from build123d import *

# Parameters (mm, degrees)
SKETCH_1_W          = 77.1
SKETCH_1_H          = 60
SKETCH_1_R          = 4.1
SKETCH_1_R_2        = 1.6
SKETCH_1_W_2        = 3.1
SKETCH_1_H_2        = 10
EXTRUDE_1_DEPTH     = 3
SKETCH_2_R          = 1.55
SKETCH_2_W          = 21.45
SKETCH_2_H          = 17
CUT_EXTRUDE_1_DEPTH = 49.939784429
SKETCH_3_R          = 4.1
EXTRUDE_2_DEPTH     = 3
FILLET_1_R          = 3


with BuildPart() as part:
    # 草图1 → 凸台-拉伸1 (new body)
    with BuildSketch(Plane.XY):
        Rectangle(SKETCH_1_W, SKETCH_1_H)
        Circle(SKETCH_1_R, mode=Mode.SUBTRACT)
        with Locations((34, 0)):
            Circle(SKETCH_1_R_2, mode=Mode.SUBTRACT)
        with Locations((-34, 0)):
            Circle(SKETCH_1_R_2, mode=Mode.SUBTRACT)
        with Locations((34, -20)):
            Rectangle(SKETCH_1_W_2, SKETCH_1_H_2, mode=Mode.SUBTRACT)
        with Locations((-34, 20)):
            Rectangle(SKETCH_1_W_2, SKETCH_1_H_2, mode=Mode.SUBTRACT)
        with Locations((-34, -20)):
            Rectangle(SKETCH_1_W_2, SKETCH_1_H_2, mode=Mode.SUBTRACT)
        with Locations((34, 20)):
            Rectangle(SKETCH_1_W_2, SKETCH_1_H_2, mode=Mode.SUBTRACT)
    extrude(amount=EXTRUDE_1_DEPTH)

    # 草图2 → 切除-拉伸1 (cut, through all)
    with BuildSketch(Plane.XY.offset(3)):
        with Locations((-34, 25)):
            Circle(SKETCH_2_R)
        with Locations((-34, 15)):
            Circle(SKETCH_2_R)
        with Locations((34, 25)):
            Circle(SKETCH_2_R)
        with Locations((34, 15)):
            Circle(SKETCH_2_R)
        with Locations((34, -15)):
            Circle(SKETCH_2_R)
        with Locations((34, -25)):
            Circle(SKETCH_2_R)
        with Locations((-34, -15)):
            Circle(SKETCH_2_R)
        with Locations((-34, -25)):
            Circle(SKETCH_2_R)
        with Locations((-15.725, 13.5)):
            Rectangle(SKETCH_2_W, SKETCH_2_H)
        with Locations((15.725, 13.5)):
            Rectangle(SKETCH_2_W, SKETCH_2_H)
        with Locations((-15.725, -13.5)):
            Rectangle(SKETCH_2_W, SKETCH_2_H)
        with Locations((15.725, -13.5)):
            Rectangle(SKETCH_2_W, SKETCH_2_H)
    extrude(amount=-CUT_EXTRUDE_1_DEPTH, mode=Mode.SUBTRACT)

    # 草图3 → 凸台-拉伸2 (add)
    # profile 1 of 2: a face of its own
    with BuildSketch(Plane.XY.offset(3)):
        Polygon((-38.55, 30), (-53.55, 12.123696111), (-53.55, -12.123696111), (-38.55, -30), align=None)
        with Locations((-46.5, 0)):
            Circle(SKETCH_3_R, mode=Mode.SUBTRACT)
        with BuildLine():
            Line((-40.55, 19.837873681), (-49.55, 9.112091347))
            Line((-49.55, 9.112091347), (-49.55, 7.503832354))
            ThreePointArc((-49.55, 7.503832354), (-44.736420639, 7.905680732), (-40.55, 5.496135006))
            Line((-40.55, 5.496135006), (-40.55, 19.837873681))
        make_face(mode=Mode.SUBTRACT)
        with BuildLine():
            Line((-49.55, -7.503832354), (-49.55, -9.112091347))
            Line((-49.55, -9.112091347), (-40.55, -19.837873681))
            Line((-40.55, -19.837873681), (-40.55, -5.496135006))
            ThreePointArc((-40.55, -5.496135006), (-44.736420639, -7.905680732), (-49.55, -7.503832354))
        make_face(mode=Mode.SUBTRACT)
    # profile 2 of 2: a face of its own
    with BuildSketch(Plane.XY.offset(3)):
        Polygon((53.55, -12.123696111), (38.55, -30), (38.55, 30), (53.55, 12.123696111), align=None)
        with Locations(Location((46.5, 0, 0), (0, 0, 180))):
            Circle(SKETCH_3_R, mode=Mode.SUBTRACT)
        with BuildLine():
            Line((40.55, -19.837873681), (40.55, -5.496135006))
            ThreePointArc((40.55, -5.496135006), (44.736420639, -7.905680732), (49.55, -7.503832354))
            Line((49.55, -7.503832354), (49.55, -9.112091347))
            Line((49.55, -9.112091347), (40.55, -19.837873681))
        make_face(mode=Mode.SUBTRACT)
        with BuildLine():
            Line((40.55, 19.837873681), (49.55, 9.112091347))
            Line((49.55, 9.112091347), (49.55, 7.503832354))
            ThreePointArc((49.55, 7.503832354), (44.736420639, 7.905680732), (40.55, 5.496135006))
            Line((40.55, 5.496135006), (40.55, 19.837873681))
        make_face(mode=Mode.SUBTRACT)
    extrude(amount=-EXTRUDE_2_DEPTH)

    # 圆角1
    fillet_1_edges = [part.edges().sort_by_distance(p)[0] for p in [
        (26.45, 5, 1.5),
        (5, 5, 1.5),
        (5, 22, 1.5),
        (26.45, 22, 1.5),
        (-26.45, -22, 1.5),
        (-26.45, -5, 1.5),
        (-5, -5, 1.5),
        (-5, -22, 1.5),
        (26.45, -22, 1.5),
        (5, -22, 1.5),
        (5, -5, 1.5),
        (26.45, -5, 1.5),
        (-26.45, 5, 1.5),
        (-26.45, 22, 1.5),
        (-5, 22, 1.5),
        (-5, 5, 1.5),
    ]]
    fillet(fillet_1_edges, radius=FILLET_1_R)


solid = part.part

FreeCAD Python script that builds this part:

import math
import FreeCAD as App
import Part
import Sketcher
from FreeCAD import Vector
Q = App.Units.Quantity


def edges_at(feature, points):
    """Names of the edges that pass closest to the given points."""
    edges = feature.Shape.Edges
    near = lambda p: min(range(len(edges)), key=lambda i: edges[i].distToShape(Part.Vertex(*p))[0])
    return sorted({f"Edge{near(p) + 1}" for p in points})


def add_polygon(sketch, points):
    """Adds a closed chain of lines whose ends are joined by coincident constraints."""
    first, n = sketch.GeometryCount, len(points)
    for a, b in zip(points, points[1:] + points[:1]):
        sketch.addGeometry(Part.LineSegment(App.Vector(*a, 0), App.Vector(*b, 0)), False)
    for i in range(n):
        sketch.addConstraint(Sketcher.Constraint("Coincident", first + i, 2, first + (i + 1) % n, 1))

doc = App.newDocument("Part")
body = doc.addObject("PartDesign::Body", "Body")

# Sketch on XY plane
sketch1 = body.newObject("Sketcher::SketchObject", "Sketch")
sketch1.AttachmentSupport = (doc.getObject("XY_Plane"), [""])
sketch1.MapMode = "FlatFace"
add_polygon(sketch1, [(-38.5, 30), (-38.5, -30), (38.5, -30), (38.5, 30)])  # lines 0-3
add_polygon(sketch1, [(-32.5, -25), (-35.5, -25), (-35.5, -15), (-32.5, -15)])  # lines 4-7
add_polygon(sketch1, [(35.5, -25), (32.5, -25), (32.5, -15), (35.5, -15)])  # lines 8-11
sketch1.addGeometry(Part.Circle(Vector(-34, 0, 0), Vector(0, 0, 1), 1.6), False)  # 12
add_polygon(sketch1, [(-32.5, 15), (-35.5, 15), (-35.5, 25), (-32.5, 25)])  # lines 13-16
sketch1.addGeometry(Part.Circle(Vector(0, 0, 0), Vector(0, 0, 1), 4.1), False)  # 17
sketch1.addGeometry(Part.Circle(Vector(34, 0, 0), Vector(0, 0, 1), 1.6), False)  # 18
add_polygon(sketch1, [(35.5, 15), (32.5, 15), (32.5, 25), (35.5, 25)])  # lines 19-22
sketch1.addConstraint([
    Sketcher.Constraint("Vertical", 0),
    Sketcher.Constraint("Horizontal", 1),
    Sketcher.Constraint("Vertical", 2),
    Sketcher.Constraint("Horizontal", 3),
    Sketcher.Constraint("Horizontal", 4),
    Sketcher.Constraint("Vertical", 5),
    Sketcher.Constraint("Horizontal", 6),
    Sketcher.Constraint("Vertical", 7),
    Sketcher.Constraint("Horizontal", 8),
    Sketcher.Constraint("Vertical", 9),
    Sketcher.Constraint("Horizontal", 10),
    Sketcher.Constraint("Vertical", 11),
    Sketcher.Constraint("Horizontal", 13),
    Sketcher.Constraint("Vertical", 14),
    Sketcher.Constraint("Horizontal", 15),
    Sketcher.Constraint("Vertical", 16),
    Sketcher.Constraint("Horizontal", 19),
    Sketcher.Constraint("Vertical", 20),
    Sketcher.Constraint("Horizontal", 21),
    Sketcher.Constraint("Vertical", 22),
    Sketcher.Constraint("Coincident", 17, 3, -1, 1),
    Sketcher.Constraint("Equal", 12, 18),
    Sketcher.Constraint("Symmetric", 12, 3, 18, 3, -1, 1),
    Sketcher.Constraint("Symmetric", 0, 2, 2, 2, -1, 1),
    Sketcher.Constraint("Symmetric", 10, 2, 13, 2, -1, 1),
    Sketcher.Constraint("Symmetric", 8, 2, 15, 2, -1, 1),
    Sketcher.Constraint("Symmetric", 6, 2, 19, 2, -1, 1),
    Sketcher.Constraint("Symmetric", 4, 2, 21, 2, -1, 1),
    Sketcher.Constraint("Symmetric", 7, 2, 8, 2, -2),
    Sketcher.Constraint("Symmetric", 5, 2, 10, 2, -2),
    Sketcher.Constraint("PointOnObject", 12, 3, -1),
    Sketcher.Constraint("Diameter", 12, 3.2),
    Sketcher.Constraint("Diameter", 17, 8.2),
    Sketcher.Constraint("DistanceY", 0, 2, 0, 1, 60.0),
    Sketcher.Constraint("DistanceY", 5, 1, 5, 2, 10.0),
    Sketcher.Constraint("DistanceX", 1, 1, 1, 2, 77.1),
    Sketcher.Constraint("DistanceX", 4, 2, 4, 1, 3.1),
    Sketcher.Constraint("DistanceX", 12, 3, -1, 1, 34.0),
    Sketcher.Constraint("DistanceY", 4, 2, -1, 1, 25.0),
    Sketcher.Constraint("DistanceX", 0, 2, 4, 2, 3.0),
])
pad1 = body.newObject("PartDesign::Pad", "Pad")
pad1.Profile = sketch1
pad1.Length = 3

# Sketch on XY plane
sketch2 = body.newObject("Sketcher::SketchObject", "Sketch001")
sketch2.AttachmentSupport = (doc.getObject("XY_Plane"), [""])
sketch2.MapMode = "FlatFace"
sketch2.AttachmentOffset = App.Placement(Vector(0, 0, 3), App.Rotation())
sketch2.addGeometry(Part.Circle(Vector(-34, 25, 0), Vector(0, 0, 1), 1.6), False)  # 0
sketch2.addGeometry(Part.Circle(Vector(-34, 15, 0), Vector(0, 0, 1), 1.6), False)  # 1
sketch2.addGeometry(Part.Circle(Vector(34, 25, 0), Vector(0, 0, 1), 1.6), False)  # 2
sketch2.addGeometry(Part.Circle(Vector(34, 15, 0), Vector(0, 0, 1), 1.6), False)  # 3
sketch2.addGeometry(Part.Circle(Vector(34, -15, 0), Vector(0, 0, 1), 1.6), False)  # 4
sketch2.addGeometry(Part.Circle(Vector(34, -25, 0), Vector(0, 0, 1), 1.6), False)  # 5
sketch2.addGeometry(Part.Circle(Vector(-34, -15, 0), Vector(0, 0, 1), 1.6), False)  # 6
sketch2.addGeometry(Part.Circle(Vector(-34, -25, 0), Vector(0, 0, 1), 1.6), False)  # 7
add_polygon(sketch2, [(-26.4, 22), (-26.4, 5), (-5, 5), (-5, 22)])  # lines 8-11
add_polygon(sketch2, [(5, 22), (5, 5), (26.4, 5), (26.4, 22)])  # lines 12-15
add_polygon(sketch2, [(-26.4, -5), (-26.4, -22), (-5, -22), (-5, -5)])  # lines 16-19
add_polygon(sketch2, [(5, -5), (5, -22), (26.4, -22), (26.4, -5)])  # lines 20-23
sketch2.addConstraint([
    Sketcher.Constraint("Vertical", 8),
    Sketcher.Constraint("Horizontal", 9),
    Sketcher.Constraint("Vertical", 10),
    Sketcher.Constraint("Horizontal", 11),
    Sketcher.Constraint("Vertical", 12),
    Sketcher.Constraint("Horizontal", 13),
    Sketcher.Constraint("Vertical", 14),
    Sketcher.Constraint("Horizontal", 15),
    Sketcher.Constraint("Vertical", 16),
    Sketcher.Constraint("Horizontal", 17),
    Sketcher.Constraint("Vertical", 18),
    Sketcher.Constraint("Horizontal", 19),
    Sketcher.Constraint("Vertical", 20),
    Sketcher.Constraint("Horizontal", 21),
    Sketcher.Constraint("Vertical", 22),
    Sketcher.Constraint("Horizontal", 23),
    Sketcher.Constraint("Equal", 0, 1),
    Sketcher.Constraint("Equal", 1, 2),
    Sketcher.Constraint("Equal", 2, 3),
    Sketcher.Constraint("Equal", 3, 4),
    Sketcher.Constraint("Equal", 4, 5),
    Sketcher.Constraint("Equal", 5, 6),
    Sketcher.Constraint("Equal", 6, 7),
    Sketcher.Constraint("Symmetric", 1, 3, 4, 3, -1, 1),
    Sketcher.Constraint("Symmetric", 0, 3, 5, 3, -1, 1),
    Sketcher.Constraint("Symmetric", 3, 3, 6, 3, -1, 1),
    Sketcher.Constraint("Symmetric", 2, 3, 7, 3, -1, 1),
    Sketcher.Constraint("Symmetric", 14, 2, 16, 2, -1, 1),
    Sketcher.Constraint("Symmetric", 12, 2, 18, 2, -1, 1),
    Sketcher.Constraint("Symmetric", 10, 2, 20, 2, -1, 1),
    Sketcher.Constraint("Symmetric", 8, 2, 22, 2, -1, 1),
    Sketcher.Constraint("Symmetric", 0, 3, 2, 3, -2),
    Sketcher.Constraint("Symmetric", 1, 3, 3, 3, -2),
    Sketcher.Constraint("Symmetric", 9, 2, 12, 2, -2),
    Sketcher.Constraint("Symmetric", 11, 2, 14, 2, -2),
    Sketcher.Constraint("Vertical", 0, 3, 1, 3),
    Sketcher.Constraint("Diameter", 0, 3.1),
    Sketcher.Constraint("DistanceY", 8, 2, 8, 1, 17.0),
    Sketcher.Constraint("DistanceX", 0, 3, -1, 1, 34.0),
    Sketcher.Constraint("DistanceY", -1, 1, 0, 3, 25.0),
    Sketcher.Constraint("DistanceY", -1, 1, 1, 3, 15.0),
    Sketcher.Constraint("DistanceY", -1, 1, 8, 2, 5.0),
    Sketcher.Constraint("DistanceX", 9, 2, -1, 1, 5.0),
    Sketcher.Constraint("DistanceX", 9, 1, 9, 2, 21.45),
])
pocket1 = body.newObject("PartDesign::Pocket", "Pocket")
pocket1.Profile = sketch2
pocket1.Type = "ThroughAll"

# Sketch on XY plane
sketch3 = body.newObject("Sketcher::SketchObject", "Sketch002")
sketch3.AttachmentSupport = (doc.getObject("XY_Plane"), [""])
sketch3.MapMode = "FlatFace"
sketch3.AttachmentOffset = App.Placement(Vector(0, 0, 3), App.Rotation())
add_polygon(sketch3, [(-38.5, 30), (-53.5, 12.1), (-53.5, -12.1), (-38.5, -30)])  # lines 0-3
sketch3.addGeometry(Part.LineSegment(Vector(-49.5, -9.1, 0), Vector(-49.5, -7.5, 0)), False)  # 4
sketch3.addGeometry(Part.ArcOfCircle(Part.Circle(Vector(-46.5, 0, 0), Vector(0, 0, 1), 8.1), math.radians(-112), math.radians(-43)), False)  # 5
sketch3.addGeometry(Part.LineSegment(Vector(-40.5, -5.5, 0), Vector(-40.5, -19.8, 0)), False)  # 6
sketch3.addGeometry(Part.LineSegment(Vector(-40.5, -19.8, 0), Vector(-49.5, -9.1, 0)), False)  # 7
sketch3.addGeometry(Part.Circle(Vector(-46.5, 0, 0), Vector(0, 0, 1), 4.1), False)  # 8
sketch3.addGeometry(Part.LineSegment(Vector(-49.5, 9.1, 0), Vector(-40.5, 19.8, 0)), False)  # 9
sketch3.addGeometry(Part.LineSegment(Vector(-40.5, 19.8, 0), Vector(-40.5, 5.5, 0)), False)  # 10
sketch3.addGeometry(Part.ArcOfCircle(Part.Circle(Vector(-46.5, 0, 0), Vector(0, 0, 1), 8.1), math.radians(43), math.radians(112)), False)  # 11
sketch3.addGeometry(Part.LineSegment(Vector(-49.5, 7.5, 0), Vector(-49.5, 9.1, 0)), False)  # 12
add_polygon(sketch3, [(38.5, -30), (53.5, -12.1), (53.5, 12.1), (38.5, 30)])  # lines 13-16
sketch3.addGeometry(Part.LineSegment(Vector(40.5, -19.8, 0), Vector(40.5, -5.5, 0)), False)  # 17
sketch3.addGeometry(Part.ArcOfCircle(Part.Circle(Vector(46.5, 0, 0), Vector(0, 0, 1), 8.1), math.radians(-137), math.radians(-68)), False)  # 18
sketch3.addGeometry(Part.LineSegment(Vector(49.5, -7.5, 0), Vector(49.5, -9.1, 0)), False)  # 19
sketch3.addGeometry(Part.LineSegment(Vector(49.5, -9.1, 0), Vector(40.5, -19.8, 0)), False)  # 20
sketch3.addGeometry(Part.Circle(Vector(46.5, 0, 0), Vector(0, 0, 1), 4.1), False)  # 21
sketch3.addGeometry(Part.LineSegment(Vector(40.5, 19.8, 0), Vector(49.5, 9.1, 0)), False)  # 22
sketch3.addGeometry(Part.LineSegment(Vector(49.5, 9.1, 0), Vector(49.5, 7.5, 0)), False)  # 23
sketch3.addGeometry(Part.ArcOfCircle(Part.Circle(Vector(46.5, 0, 0), Vector(0, 0, 1), 8.1), math.radians(68), math.radians(137)), False)  # 24
sketch3.addGeometry(Part.LineSegment(Vector(40.5, 5.5, 0), Vector(40.5, 19.8, 0)), False)  # 25
sketch3.addConstraint([
    Sketcher.Constraint("Coincident", 4, 2, 5, 1),
    Sketcher.Constraint("Coincident", 5, 2, 6, 1),
    Sketcher.Constraint("Coincident", 6, 2, 7, 1),
    Sketcher.Constraint("Coincident", 7, 2, 4, 1),
    Sketcher.Constraint("Coincident", 9, 2, 10, 1),
    Sketcher.Constraint("Coincident", 10, 2, 11, 1),
    Sketcher.Constraint("Coincident", 11, 2, 12, 1),
    Sketcher.Constraint("Coincident", 12, 2, 9, 1),
    Sketcher.Constraint("Coincident", 17, 2, 18, 1),
    Sketcher.Constraint("Coincident", 18, 2, 19, 1),
    Sketcher.Constraint("Coincident", 19, 2, 20, 1),
    Sketcher.Constraint("Coincident", 20, 2, 17, 1),
    Sketcher.Constraint("Coincident", 22, 2, 23, 1),
    Sketcher.Constraint("Coincident", 23, 2, 24, 1),
    Sketcher.Constraint("Coincident", 24, 2, 25, 1),
    Sketcher.Constraint("Coincident", 25, 2, 22, 1),
    Sketcher.Constraint("Vertical", 1),
    Sketcher.Constraint("Vertical", 3),
    Sketcher.Constraint("Vertical", 4),
    Sketcher.Constraint("Vertical", 6),
    Sketcher.Constraint("Vertical", 10),
    Sketcher.Constraint("Vertical", 12),
    Sketcher.Constraint("Vertical", 14),
    Sketcher.Constraint("Vertical", 16),
    Sketcher.Constraint("Vertical", 17),
    Sketcher.Constraint("Vertical", 19),
    Sketcher.Constraint("Vertical", 23),
    Sketcher.Constraint("Vertical", 25),
    Sketcher.Constraint("Coincident", 8, 3, 5, 3),
    Sketcher.Constraint("Coincident", 11, 3, 5, 3),
    Sketcher.Constraint("Coincident", 21, 3, 18, 3),
    Sketcher.Constraint("Coincident", 24, 3, 18, 3),
    Sketcher.Constraint("Equal", 5, 11),
    Sketcher.Constraint("Equal", 11, 18),
    Sketcher.Constraint("Equal", 8, 21),
    Sketcher.Constraint("Equal", 18, 24),
    Sketcher.Constraint("Symmetric", 5, 3, 18, 3, -1, 1),
    Sketcher.Constraint("Symmetric", 0, 2, 13, 2, -1, 1),
    Sketcher.Constraint("Symmetric", 2, 2, 15, 2, -1, 1),
    Sketcher.Constraint("Symmetric", 12, 2, 19, 2, -1, 1),
    Sketcher.Constraint("Symmetric", 9, 2, 20, 2, -1, 1),
    Sketcher.Constraint("Symmetric", 7, 2, 22, 2, -1, 1),
    Sketcher.Constraint("Symmetric", 6, 2, 25, 2, -1, 1),
    Sketcher.Constraint("Symmetric", 5, 2, 17, 2, -2),
    Sketcher.Constraint("Symmetric", 7, 2, 19, 2, -2),
    Sketcher.Constraint("Parallel", 2, 7),
    Sketcher.Constraint("Parallel", 0, 9),
    Sketcher.Constraint("Parallel", 9, 13),
    Sketcher.Constraint("Parallel", 7, 15),
    Sketcher.Constraint("Horizontal", 1, 2, 13, 2),
    Sketcher.Constraint("Horizontal", 3, 2, 15, 2),
    Sketcher.Constraint("Diameter", 8, 8.2),
    Sketcher.Constraint("Radius", 5, 8.1),
    Sketcher.Constraint("DistanceY", 3, 1, 3, 2, 60.0),
    Sketcher.Constraint("Angle", 0, Q("-130 deg")),
    Sketcher.Constraint("DistanceX", 5, 3, 18, 3, 93.0),
    Sketcher.Constraint("DistanceX", 1, 2, 2, 2, 15.0),
    Sketcher.Constraint("DistanceX", 1, 2, 4, 2, 4.0),
    Sketcher.Constraint("DistanceX", 4, 2, 5, 2, 9.0),
    Sketcher.Constraint("DistanceX", 2, 2, 13, 2, 92.1),
    Sketcher.Constraint("DistanceY", 4, 1, 4, 2, 1.608259),
])
pad2 = body.newObject("PartDesign::Pad", "Pad001")
pad2.Profile = sketch3
pad2.Length = 3
pad2.Reversed = True
doc.recompute()

fillet = body.newObject("PartDesign::Fillet", "Fillet")
fillet.Base = (pad2, edges_at(pad2, [
    (26.45, 5, 1.5),
    (5, 5, 1.5),
    (5, 22, 1.5),
    (26.45, 22, 1.5),
    (-26.45, -22, 1.5),
    (-26.45, -5, 1.5),
    (-5, -5, 1.5),
    (-5, -22, 1.5),
    (26.45, -22, 1.5),
    (5, -22, 1.5),
    (5, -5, 1.5),
    (26.45, -5, 1.5),
    (-26.45, 5, 1.5),
    (-26.45, 22, 1.5),
    (-5, 22, 1.5),
    (-5, 5, 1.5),
]))
fillet.Radius = 3

doc.recompute()
